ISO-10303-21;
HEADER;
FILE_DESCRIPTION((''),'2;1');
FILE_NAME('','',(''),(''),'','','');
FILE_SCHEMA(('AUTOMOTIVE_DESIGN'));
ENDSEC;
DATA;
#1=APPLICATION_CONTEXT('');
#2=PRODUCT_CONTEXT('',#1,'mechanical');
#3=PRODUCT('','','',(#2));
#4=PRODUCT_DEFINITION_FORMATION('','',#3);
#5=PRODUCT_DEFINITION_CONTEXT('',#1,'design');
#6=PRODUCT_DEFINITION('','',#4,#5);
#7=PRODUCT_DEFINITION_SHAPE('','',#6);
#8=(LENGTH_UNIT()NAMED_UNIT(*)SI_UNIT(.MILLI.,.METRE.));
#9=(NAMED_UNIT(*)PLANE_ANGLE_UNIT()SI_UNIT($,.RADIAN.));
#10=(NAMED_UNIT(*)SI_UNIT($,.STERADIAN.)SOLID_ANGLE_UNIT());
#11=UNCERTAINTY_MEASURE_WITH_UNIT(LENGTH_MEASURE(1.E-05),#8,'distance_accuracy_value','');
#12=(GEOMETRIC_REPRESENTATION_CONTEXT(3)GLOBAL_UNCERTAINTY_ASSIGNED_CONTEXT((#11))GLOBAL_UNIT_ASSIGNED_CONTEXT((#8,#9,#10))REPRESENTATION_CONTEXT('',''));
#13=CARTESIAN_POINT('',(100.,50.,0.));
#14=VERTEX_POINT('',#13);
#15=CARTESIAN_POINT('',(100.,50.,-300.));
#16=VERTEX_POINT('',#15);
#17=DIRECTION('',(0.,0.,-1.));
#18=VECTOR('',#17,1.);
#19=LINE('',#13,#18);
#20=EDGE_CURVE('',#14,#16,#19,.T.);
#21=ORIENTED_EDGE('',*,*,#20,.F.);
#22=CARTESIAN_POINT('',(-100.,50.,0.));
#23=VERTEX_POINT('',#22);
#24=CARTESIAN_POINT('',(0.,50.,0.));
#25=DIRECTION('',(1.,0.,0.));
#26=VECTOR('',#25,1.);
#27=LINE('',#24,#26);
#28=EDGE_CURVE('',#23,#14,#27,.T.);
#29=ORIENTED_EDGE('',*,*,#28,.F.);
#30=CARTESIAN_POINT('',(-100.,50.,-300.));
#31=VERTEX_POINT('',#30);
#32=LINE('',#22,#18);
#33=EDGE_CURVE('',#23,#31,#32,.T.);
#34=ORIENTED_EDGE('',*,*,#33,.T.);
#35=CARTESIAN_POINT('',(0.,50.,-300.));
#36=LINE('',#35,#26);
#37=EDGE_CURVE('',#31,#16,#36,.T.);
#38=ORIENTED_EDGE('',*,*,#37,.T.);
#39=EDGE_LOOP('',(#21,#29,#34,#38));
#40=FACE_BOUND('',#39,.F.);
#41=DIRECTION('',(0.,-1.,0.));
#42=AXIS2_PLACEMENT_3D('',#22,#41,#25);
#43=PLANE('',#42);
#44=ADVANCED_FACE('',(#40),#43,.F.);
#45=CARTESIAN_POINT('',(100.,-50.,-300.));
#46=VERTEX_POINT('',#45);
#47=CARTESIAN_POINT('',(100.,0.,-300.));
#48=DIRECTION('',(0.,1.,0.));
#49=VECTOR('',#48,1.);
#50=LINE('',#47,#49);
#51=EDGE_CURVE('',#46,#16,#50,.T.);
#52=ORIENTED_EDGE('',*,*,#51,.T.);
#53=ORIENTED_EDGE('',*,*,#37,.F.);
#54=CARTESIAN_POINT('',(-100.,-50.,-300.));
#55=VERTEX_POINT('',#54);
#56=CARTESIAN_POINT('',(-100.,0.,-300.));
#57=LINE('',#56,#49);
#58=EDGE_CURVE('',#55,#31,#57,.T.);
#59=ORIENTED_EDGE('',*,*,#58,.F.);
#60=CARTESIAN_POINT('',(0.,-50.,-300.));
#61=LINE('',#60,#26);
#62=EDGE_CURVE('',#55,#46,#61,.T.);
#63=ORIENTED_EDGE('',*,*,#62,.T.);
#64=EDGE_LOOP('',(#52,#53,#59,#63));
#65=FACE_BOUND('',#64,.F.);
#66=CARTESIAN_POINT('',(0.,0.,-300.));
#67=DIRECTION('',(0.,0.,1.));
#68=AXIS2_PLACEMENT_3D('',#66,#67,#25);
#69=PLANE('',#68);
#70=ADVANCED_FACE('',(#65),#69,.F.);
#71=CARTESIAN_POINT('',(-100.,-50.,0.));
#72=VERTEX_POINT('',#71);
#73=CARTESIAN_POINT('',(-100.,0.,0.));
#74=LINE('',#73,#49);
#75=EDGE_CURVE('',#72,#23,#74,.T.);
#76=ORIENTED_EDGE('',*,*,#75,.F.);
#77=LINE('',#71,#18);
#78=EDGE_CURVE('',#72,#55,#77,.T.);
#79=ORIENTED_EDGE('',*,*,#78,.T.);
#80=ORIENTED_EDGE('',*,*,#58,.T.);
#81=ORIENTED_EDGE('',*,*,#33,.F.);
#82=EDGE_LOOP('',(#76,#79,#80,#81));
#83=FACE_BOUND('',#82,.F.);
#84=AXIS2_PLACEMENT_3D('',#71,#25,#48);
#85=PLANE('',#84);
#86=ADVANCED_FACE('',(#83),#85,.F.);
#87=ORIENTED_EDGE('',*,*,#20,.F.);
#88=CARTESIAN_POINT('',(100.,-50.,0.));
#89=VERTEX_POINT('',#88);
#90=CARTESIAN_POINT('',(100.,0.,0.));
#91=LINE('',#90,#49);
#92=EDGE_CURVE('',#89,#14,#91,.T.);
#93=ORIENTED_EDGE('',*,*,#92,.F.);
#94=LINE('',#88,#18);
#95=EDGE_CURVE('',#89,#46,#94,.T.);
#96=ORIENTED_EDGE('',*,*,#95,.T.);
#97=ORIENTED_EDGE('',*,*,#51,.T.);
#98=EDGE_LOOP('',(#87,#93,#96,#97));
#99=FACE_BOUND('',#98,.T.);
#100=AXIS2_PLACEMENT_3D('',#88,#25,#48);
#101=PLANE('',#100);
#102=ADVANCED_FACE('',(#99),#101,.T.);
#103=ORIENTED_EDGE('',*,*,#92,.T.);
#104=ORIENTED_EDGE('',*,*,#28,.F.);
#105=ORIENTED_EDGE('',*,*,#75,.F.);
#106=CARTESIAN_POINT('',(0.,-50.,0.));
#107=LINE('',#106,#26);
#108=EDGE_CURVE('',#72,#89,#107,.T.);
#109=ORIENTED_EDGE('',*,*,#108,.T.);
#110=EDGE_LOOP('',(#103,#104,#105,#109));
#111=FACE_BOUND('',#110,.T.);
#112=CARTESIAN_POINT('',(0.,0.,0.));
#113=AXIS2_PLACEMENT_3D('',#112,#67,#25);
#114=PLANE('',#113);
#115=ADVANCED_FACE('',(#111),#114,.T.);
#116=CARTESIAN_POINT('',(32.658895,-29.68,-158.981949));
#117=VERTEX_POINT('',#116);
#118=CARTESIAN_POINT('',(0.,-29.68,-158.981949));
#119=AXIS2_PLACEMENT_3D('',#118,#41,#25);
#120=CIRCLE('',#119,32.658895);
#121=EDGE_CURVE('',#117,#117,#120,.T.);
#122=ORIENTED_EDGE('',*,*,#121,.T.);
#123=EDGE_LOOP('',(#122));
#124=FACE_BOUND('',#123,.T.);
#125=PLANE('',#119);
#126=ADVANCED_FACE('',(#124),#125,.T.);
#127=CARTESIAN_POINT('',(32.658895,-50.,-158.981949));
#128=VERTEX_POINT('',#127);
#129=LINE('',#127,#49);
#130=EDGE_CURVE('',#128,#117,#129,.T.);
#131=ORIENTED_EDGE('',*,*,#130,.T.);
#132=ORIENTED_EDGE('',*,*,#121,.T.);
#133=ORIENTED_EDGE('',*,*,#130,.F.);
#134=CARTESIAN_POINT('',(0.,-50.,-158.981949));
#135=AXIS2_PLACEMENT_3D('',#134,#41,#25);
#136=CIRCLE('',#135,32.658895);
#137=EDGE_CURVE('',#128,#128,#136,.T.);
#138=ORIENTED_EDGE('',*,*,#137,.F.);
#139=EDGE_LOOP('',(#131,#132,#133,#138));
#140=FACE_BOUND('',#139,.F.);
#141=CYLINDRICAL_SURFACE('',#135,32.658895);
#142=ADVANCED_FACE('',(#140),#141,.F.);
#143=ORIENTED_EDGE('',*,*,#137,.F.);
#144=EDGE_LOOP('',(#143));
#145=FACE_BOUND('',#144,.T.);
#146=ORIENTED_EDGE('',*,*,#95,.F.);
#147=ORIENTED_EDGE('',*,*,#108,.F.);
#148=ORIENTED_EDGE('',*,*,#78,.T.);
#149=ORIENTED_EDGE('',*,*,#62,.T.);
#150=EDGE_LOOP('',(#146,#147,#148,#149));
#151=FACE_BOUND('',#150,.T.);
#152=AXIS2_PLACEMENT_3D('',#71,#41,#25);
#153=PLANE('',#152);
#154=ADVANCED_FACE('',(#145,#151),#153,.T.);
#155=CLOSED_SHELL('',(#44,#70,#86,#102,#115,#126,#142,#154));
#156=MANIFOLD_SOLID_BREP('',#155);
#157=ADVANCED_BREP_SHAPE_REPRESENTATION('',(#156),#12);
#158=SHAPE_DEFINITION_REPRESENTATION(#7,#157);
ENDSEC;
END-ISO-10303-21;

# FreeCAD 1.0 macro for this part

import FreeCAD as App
import Part
import Sketcher

V = App.Vector
Q = App.Units.Quantity


def add_polygon(sketch, points):
    """Adds a closed chain of lines whose ends are joined by coincident constraints."""
    first, n = sketch.GeometryCount, len(points)
    for a, b in zip(points, points[1:] + points[:1]):
        sketch.addGeometry(Part.LineSegment(App.Vector(*a, 0), App.Vector(*b, 0)), False)
    for i in range(n):
        sketch.addConstraint(Sketcher.Constraint("Coincident", first + i, 2, first + (i + 1) % n, 1))

doc = App.newDocument("Part")
body = doc.addObject("PartDesign::Body", "Body")

sketch1 = body.newObject("Sketcher::SketchObject", "Sketch")
sketch1.AttachmentSupport = (doc.getObject("XY_Plane"), [""])
sketch1.MapMode = "FlatFace"
add_polygon(sketch1, [(-100, 50), (-100, -50), (100, -50), (100, 50)])
sketch1.addConstraint([
    Sketcher.Constraint("Vertical", 0),
    Sketcher.Constraint("Horizontal", 1),
    Sketcher.Constraint("Vertical", 2),
    Sketcher.Constraint("Horizontal", 3),
    Sketcher.Constraint("Symmetric", 0, 2, 2, 2, -1, 1),
    Sketcher.Constraint("DistanceX", 1, 1, 1, 2, Q("200 mm")),
    Sketcher.Constraint("DistanceY", 0, 2, 0, 1, Q("100 mm")),
])
pad1 = body.newObject("PartDesign::Pad", "Pad")
pad1.Profile = sketch1
pad1.Length = 300
pad1.Reversed = True

sketch2 = body.newObject("Sketcher::SketchObject", "Sketch001")
sketch2.AttachmentSupport = (doc.getObject("XZ_Plane"), [""])
sketch2.MapMode = "FlatFace"
sketch2.AttachmentOffset = App.Placement(V(0, 0, 50), App.Rotation())
sketch2.addGeometry(Part.Circle(V(0, -159, 0), V(0, 0, 1), 33), False)
sketch2.addConstraint([
    Sketcher.Constraint("PointOnObject", 0, 3, -2),
    Sketcher.Constraint("Diameter", 0, Q("65.31779 mm")),
    Sketcher.Constraint("DistanceY", 0, 3, -1, 1, Q("158.981949 mm")),
])
pocket1 = body.newObject("PartDesign::Pocket", "Pocket")
pocket1.Profile = sketch2
pocket1.Length = 20.32

doc.recompute()
